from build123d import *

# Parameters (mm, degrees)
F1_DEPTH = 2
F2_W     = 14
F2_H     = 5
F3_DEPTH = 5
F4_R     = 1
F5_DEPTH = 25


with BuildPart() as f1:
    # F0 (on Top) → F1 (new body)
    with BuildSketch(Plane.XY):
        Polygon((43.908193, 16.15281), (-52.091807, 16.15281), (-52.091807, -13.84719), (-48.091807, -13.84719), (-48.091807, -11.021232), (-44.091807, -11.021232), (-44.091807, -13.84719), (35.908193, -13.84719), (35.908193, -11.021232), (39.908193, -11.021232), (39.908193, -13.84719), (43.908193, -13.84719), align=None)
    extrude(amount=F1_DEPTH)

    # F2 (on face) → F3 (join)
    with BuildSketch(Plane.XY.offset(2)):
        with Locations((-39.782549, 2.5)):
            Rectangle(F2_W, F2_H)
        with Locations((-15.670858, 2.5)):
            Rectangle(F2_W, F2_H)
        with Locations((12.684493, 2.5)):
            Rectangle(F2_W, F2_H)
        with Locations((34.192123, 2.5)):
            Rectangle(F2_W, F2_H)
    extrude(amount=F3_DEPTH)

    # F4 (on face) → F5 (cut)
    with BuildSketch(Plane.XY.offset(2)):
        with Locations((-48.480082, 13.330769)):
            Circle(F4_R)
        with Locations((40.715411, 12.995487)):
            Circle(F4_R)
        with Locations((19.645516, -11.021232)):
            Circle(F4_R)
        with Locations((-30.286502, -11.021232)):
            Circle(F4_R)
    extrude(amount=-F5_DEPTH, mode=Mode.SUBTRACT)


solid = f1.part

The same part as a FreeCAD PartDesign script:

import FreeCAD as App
import Part
import Sketcher
from FreeCAD import Vector
Q = App.Units.Quantity


def add_polygon(sketch, points):
    """Adds a closed chain of lines whose ends are joined by coincident constraints."""
    first, n = sketch.GeometryCount, len(points)
    for a, b in zip(points, points[1:] + points[:1]):
        sketch.addGeometry(Part.LineSegment(App.Vector(*a, 0), App.Vector(*b, 0)), False)
    for i in range(n):
        sketch.addConstraint(Sketcher.Constraint("Coincident", first + i, 2, first + (i + 1) % n, 1))

doc = App.newDocument("Part")
body = doc.addObject("PartDesign::Body", "Body")

# Sketch on XY plane
sketch1 = body.newObject("Sketcher::SketchObject", "Sketch")
sketch1.AttachmentSupport = (doc.getObject("XY_Plane"), [""])
sketch1.MapMode = "FlatFace"
add_polygon(sketch1, [(43.9, 16.2), (-52.1, 16.2), (-52.1, -13.8), (-48.1, -13.8), (-48.1, -11), (-44.1, -11), (-44.1, -13.8), (35.9, -13.8), (35.9, -11), (39.9, -11), (39.9, -13.8), (43.9, -13.8)])  # lines 0-11
sketch1.addConstraint([
    Sketcher.Constraint("Horizontal", 0),
    Sketcher.Constraint("Vertical", 1),
    Sketcher.Constraint("Horizontal", 2),
    Sketcher.Constraint("Vertical", 3),
    Sketcher.Constraint("Horizontal", 4),
    Sketcher.Constraint("Vertical", 5),
    Sketcher.Constraint("Horizontal", 6),
    Sketcher.Constraint("Vertical", 7),
    Sketcher.Constraint("Horizontal", 8),
    Sketcher.Constraint("Vertical", 9),
    Sketcher.Constraint("Horizontal", 10),
    Sketcher.Constraint("Vertical", 11),
    Sketcher.Constraint("Horizontal", 2, 2, 5, 2),
    Sketcher.Constraint("Horizontal", 4, 2, 7, 2),
    Sketcher.Constraint("Horizontal", 6, 2, 9, 2),
    Sketcher.Constraint("Equal", 2, 4),
    Sketcher.Constraint("Equal", 4, 8),
    Sketcher.Constraint("Equal", 8, 10),
    Sketcher.Constraint("DistanceX", 0, 2, 0, 1, Q("96 mm")),
    Sketcher.Constraint("DistanceX", 2, 1, 2, 2, Q("4 mm")),
    Sketcher.Constraint("DistanceY", 1, 2, 1, 1, Q("30 mm")),
    Sketcher.Constraint("DistanceY", 3, 1, 3, 2, Q("2.825958 mm")),
    Sketcher.Constraint("DistanceY", -1, 1, 0, 2, Q("16.15281 mm")),
    Sketcher.Constraint("DistanceX", 0, 2, -1, 1, Q("52.091807 mm")),
])
pad1 = body.newObject("PartDesign::Pad", "Pad")
pad1.Profile = sketch1
pad1.Length = 2

# Sketch on XY plane
sketch2 = body.newObject("Sketcher::SketchObject", "Sketch001")
sketch2.AttachmentSupport = (doc.getObject("XY_Plane"), [""])
sketch2.MapMode = "FlatFace"
sketch2.AttachmentOffset = App.Placement(Vector(0, 0, 2), App.Rotation())
add_polygon(sketch2, [(-47, 5), (-47, 0), (-33, 0), (-33, 5)])  # lines 0-3
add_polygon(sketch2, [(-23, 5), (-23, 0), (-9, 0), (-9, 5)])  # lines 4-7
add_polygon(sketch2, [(6, 5), (6, 0), (20, 0), (20, 5)])  # lines 8-11
add_polygon(sketch2, [(27, 5), (27, 0), (41, 0), (41, 5)])  # lines 12-15
sketch2.addConstraint([
    Sketcher.Constraint("Vertical", 0),
    Sketcher.Constraint("Horizontal", 1),
    Sketcher.Constraint("Vertical", 2),
    Sketcher.Constraint("Horizontal", 3),
    Sketcher.Constraint("Vertical", 4),
    Sketcher.Constraint("Horizontal", 5),
    Sketcher.Constraint("Vertical", 6),
    Sketcher.Constraint("Horizontal", 7),
    Sketcher.Constraint("Vertical", 8),
    Sketcher.Constraint("Horizontal", 9),
    Sketcher.Constraint("Vertical", 10),
    Sketcher.Constraint("Horizontal", 11),
    Sketcher.Constraint("Vertical", 12),
    Sketcher.Constraint("Horizontal", 13),
    Sketcher.Constraint("Vertical", 14),
    Sketcher.Constraint("Horizontal", 15),
    Sketcher.Constraint("PointOnObject", 0, 2, -1),
    Sketcher.Constraint("PointOnObject", 4, 2, -1),
    Sketcher.Constraint("PointOnObject", 8, 2, -1),
    Sketcher.Constraint("PointOnObject", 12, 2, -1),
    Sketcher.Constraint("Horizontal", 3, 2, 6, 2),
    Sketcher.Constraint("Horizontal", 7, 2, 10, 2),
    Sketcher.Constraint("Horizontal", 11, 2, 14, 2),
    Sketcher.Constraint("Equal", 3, 5),
    Sketcher.Constraint("Equal", 7, 9),
    Sketcher.Constraint("Equal", 11, 13),
    Sketcher.Constraint("DistanceX", 1, 1, 1, 2, Q("14 mm")),
    Sketcher.Constraint("DistanceY", 0, 2, 0, 1, Q("5 mm")),
    Sketcher.Constraint("DistanceX", 0, 2, -1, 1, Q("46.782549 mm")),
    Sketcher.Constraint("DistanceX", 5, 2, -1, 1, Q("8.670858 mm")),
    Sketcher.Constraint("DistanceX", 5, 2, 8, 2, Q("14.355351 mm")),
    Sketcher.Constraint("DistanceX", 9, 2, 12, 2, Q("7.50763 mm")),
])
pad2 = body.newObject("PartDesign::Pad", "Pad001")
pad2.Profile = sketch2
pad2.Length = 5

# Sketch on XY plane
sketch3 = body.newObject("Sketcher::SketchObject", "Sketch002")
sketch3.AttachmentSupport = (doc.getObject("XY_Plane"), [""])
sketch3.MapMode = "FlatFace"
sketch3.AttachmentOffset = App.Placement(Vector(0, 0, 2), App.Rotation())
sketch3.addGeometry([
    Part.Circle(Vector(-48.5, 13.3, 0), Vector(0, 0, 1), 1),
    Part.Circle(Vector(40.7, 13, 0), Vector(0, 0, 1), 1),
    Part.Circle(Vector(19.6, -11, 0), Vector(0, 0, 1), 1),
    Part.Circle(Vector(-30.3, -11, 0), Vector(0, 0, 1), 1),
], False)
sketch3.addConstraint([
    Sketcher.Constraint("Equal", 0, 1),
    Sketcher.Constraint("Equal", 1, 2),
    Sketcher.Constraint("Equal", 2, 3),
    Sketcher.Constraint("Horizontal", 2, 3, 3, 3),
    Sketcher.Constraint("Diameter", 0, Q("2 mm")),
    Sketcher.Constraint("DistanceY", 2, 3, 0, 3, Q("24.352001 mm")),
    Sketcher.Constraint("DistanceX", 3, 3, -1, 1, Q("30.286502 mm")),
    Sketcher.Constraint("DistanceY", -1, 1, 0, 3, Q("13.330769 mm")),
    Sketcher.Constraint("DistanceX", -1, 1, 1, 3, Q("40.715411 mm")),
    Sketcher.Constraint("DistanceY", 1, 3, 0, 3, Q("0.335282 mm")),
    Sketcher.Constraint("DistanceX", 0, 3, 3, 3, Q("18.19358 mm")),
    Sketcher.Constraint("DistanceX", -1, 1, 2, 3, Q("19.645516 mm")),
])
pocket1 = body.newObject("PartDesign::Pocket", "Pocket")
pocket1.Profile = sketch3
pocket1.Length = 25

doc.recompute()
